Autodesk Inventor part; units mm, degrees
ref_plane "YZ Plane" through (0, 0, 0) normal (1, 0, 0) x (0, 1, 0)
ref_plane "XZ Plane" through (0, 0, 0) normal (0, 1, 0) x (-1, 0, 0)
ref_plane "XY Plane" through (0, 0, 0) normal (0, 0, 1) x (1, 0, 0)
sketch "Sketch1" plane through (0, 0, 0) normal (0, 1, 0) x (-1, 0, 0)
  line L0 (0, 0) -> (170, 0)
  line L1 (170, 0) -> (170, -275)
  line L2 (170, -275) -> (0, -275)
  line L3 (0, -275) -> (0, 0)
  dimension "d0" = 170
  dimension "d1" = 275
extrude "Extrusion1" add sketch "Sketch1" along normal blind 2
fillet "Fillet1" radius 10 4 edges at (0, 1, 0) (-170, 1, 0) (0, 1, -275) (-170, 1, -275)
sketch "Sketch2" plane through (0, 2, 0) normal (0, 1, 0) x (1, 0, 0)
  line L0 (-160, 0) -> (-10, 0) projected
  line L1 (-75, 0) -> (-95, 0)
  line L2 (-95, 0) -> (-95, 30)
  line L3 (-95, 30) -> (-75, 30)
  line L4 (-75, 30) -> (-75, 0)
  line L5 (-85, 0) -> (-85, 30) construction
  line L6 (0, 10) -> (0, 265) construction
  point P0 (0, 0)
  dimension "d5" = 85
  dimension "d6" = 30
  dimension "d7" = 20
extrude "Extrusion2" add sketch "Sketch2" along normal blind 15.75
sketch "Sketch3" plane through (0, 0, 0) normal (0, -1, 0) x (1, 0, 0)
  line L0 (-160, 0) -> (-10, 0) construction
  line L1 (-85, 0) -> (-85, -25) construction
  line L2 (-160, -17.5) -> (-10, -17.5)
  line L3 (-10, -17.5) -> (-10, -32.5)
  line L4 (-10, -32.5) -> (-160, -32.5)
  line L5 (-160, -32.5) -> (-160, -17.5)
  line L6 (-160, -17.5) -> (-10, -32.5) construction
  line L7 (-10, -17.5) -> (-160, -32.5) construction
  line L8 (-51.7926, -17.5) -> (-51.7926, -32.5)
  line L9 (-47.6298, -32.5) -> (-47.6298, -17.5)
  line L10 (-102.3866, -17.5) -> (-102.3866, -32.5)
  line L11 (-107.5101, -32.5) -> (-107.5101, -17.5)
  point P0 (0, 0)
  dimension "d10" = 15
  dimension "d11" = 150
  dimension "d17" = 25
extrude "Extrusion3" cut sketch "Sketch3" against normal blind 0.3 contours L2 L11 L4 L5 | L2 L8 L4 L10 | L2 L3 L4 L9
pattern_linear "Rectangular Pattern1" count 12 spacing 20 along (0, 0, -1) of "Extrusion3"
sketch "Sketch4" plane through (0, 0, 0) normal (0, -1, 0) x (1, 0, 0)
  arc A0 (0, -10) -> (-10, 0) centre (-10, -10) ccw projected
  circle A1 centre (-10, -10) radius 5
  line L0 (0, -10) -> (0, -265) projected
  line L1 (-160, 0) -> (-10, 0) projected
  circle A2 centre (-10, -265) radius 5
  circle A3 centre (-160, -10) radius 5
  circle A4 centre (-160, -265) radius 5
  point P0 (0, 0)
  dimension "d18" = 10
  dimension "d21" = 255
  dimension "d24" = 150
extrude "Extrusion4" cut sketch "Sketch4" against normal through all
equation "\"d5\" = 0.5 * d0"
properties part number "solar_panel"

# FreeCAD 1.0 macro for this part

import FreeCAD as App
import Part
import Sketcher

V = App.Vector


def edges_at(feature, points):
    """Names of the edges that pass closest to the given points."""
    edges = feature.Shape.Edges
    near = lambda p: min(range(len(edges)), key=lambda i: edges[i].distToShape(Part.Vertex(*p))[0])
    return sorted({f"Edge{near(p) + 1}" for p in points})


def add_polygon(sketch, points):
    """Adds a closed chain of lines whose ends are joined by coincident constraints."""
    first, n = sketch.GeometryCount, len(points)
    for a, b in zip(points, points[1:] + points[:1]):
        sketch.addGeometry(Part.LineSegment(App.Vector(*a, 0), App.Vector(*b, 0)), False)
    for i in range(n):
        sketch.addConstraint(Sketcher.Constraint("Coincident", first + i, 2, first + (i + 1) % n, 1))

doc = App.newDocument("Part")
params = doc.addObject("Spreadsheet::Sheet", "Params")
for row, (alias, value) in enumerate([
    ("sketch1_width", "170 mm"),
    ("sketch1_height", "275 mm"),
    ("pad1_length", "2 mm"),
    ("fillet_radius", "10 mm"),
    ("sketch2_width", "20 mm"),
    ("sketch2_height", "30 mm"),
    ("pad2_length", "15.75 mm"),
    ("sketch3_height", "15 mm"),
    ("sketch3_width", "52.49 mm"),
    ("pocket1_length", "0.3 mm"),
    ("linearpattern_pitch", "20 mm"),
    ("sketch4_diameter", "10 mm"),
], start=1):
    params.set(f"A{row}", alias)
    params.set(f"B{row}", "=" + value)
    params.setAlias(f"B{row}", alias)

body = doc.addObject("PartDesign::Body", "Body")

# Sketch on XZ plane
sketch1 = body.newObject("Sketcher::SketchObject", "Sketch")
sketch1.AttachmentSupport = (doc.getObject("XZ_Plane"), [""])
sketch1.MapMode = "FlatFace"
add_polygon(sketch1, [(-170, 0), (0, 0), (0, -275), (-170, -275)])  # lines 0-3
sketch1.addConstraint([
    Sketcher.Constraint("Horizontal", 0),
    Sketcher.Constraint("Vertical", 1),
    Sketcher.Constraint("Horizontal", 2),
    Sketcher.Constraint("Vertical", 3),
    Sketcher.Constraint("Coincident", 0, 2, -1, 1),
    Sketcher.Constraint("DistanceX", 0, 1, 0, 2, 170.0),
    Sketcher.Constraint("DistanceY", 1, 2, 1, 1, 275.0),
])
sketch1.setExpression("Constraints[9]", "Params.sketch1_width")
sketch1.setExpression("Constraints[10]", "Params.sketch1_height")
pad1 = body.newObject("PartDesign::Pad", "Pad")
pad1.Profile = sketch1
pad1.setExpression("Length", "Params.pad1_length")
pad1.Reversed = True
doc.recompute()

fillet = body.newObject("PartDesign::Fillet", "Fillet")
fillet.Base = (pad1, edges_at(pad1, [
    (0, 1, 0),
    (-170, 1, 0),
    (0, 1, -275),
    (-170, 1, -275),
]))
fillet.setExpression("Radius", "Params.fillet_radius")

# Sketch on XZ plane
sketch2 = body.newObject("Sketcher::SketchObject", "Sketch001")
sketch2.AttachmentSupport = (doc.getObject("XZ_Plane"), [""])
sketch2.MapMode = "FlatFace"
sketch2.AttachmentOffset = App.Placement(V(0, 0, -2), App.Rotation())
add_polygon(sketch2, [(-95, -30), (-95, 0), (-75, 0), (-75, -30)])  # lines 0-3
sketch2.addConstraint([
    Sketcher.Constraint("Vertical", 0),
    Sketcher.Constraint("Horizontal", 1),
    Sketcher.Constraint("Vertical", 2),
    Sketcher.Constraint("Horizontal", 3),
    Sketcher.Constraint("PointOnObject", 0, 2, -1),
    Sketcher.Constraint("DistanceX", 1, 1, 1, 2, 20.0),
    Sketcher.Constraint("DistanceY", 0, 1, 0, 2, 30.0),
    Sketcher.Constraint("DistanceX", 0, 2, -1, 1, 95.0),
])
sketch2.setExpression("Constraints[9]", "Params.sketch2_width")
sketch2.setExpression("Constraints[10]", "Params.sketch2_height")
pad2 = body.newObject("PartDesign::Pad", "Pad001")
pad2.Profile = sketch2
pad2.setExpression("Length", "Params.pad2_length")
pad2.Reversed = True

# Sketch on XZ plane
sketch3 = body.newObject("Sketcher::SketchObject", "Sketch002")
sketch3.AttachmentSupport = (doc.getObject("XZ_Plane"), [""])
sketch3.MapMode = "FlatFace"
add_polygon(sketch3, [(-108, -18), (-160, -18), (-160, -32), (-108, -32)])  # lines 0-3
add_polygon(sketch3, [(-52, -18), (-102, -18), (-102, -32), (-52, -32)])  # lines 4-7
add_polygon(sketch3, [(-10, -18), (-48, -18), (-48, -32), (-10, -32)])  # lines 8-11
sketch3.addConstraint([
    Sketcher.Constraint("Horizontal", 0),
    Sketcher.Constraint("Vertical", 1),
    Sketcher.Constraint("Horizontal", 2),
    Sketcher.Constraint("Vertical", 3),
    Sketcher.Constraint("Horizontal", 4),
    Sketcher.Constraint("Vertical", 5),
    Sketcher.Constraint("Horizontal", 6),
    Sketcher.Constraint("Vertical", 7),
    Sketcher.Constraint("Horizontal", 8),
    Sketcher.Constraint("Vertical", 9),
    Sketcher.Constraint("Horizontal", 10),
    Sketcher.Constraint("Vertical", 11),
    Sketcher.Constraint("Horizontal", 3, 2, 4, 2),
    Sketcher.Constraint("Horizontal", 2, 2, 5, 2),
    Sketcher.Constraint("Horizontal", 7, 2, 8, 2),
    Sketcher.Constraint("Horizontal", 6, 2, 9, 2),
    Sketcher.Constraint("DistanceY", 1, 2, 1, 1, 15.0),
    Sketcher.Constraint("DistanceX", 0, 2, -1, 1, 160.0),
    Sketcher.Constraint("DistanceX", 10, 2, -1, 1, 10.0),
    Sketcher.Constraint("DistanceX", 0, 2, 0, 1, 52.49),
    Sketcher.Constraint("DistanceY", 0, 2, -1, 1, 17.5),
    Sketcher.Constraint("DistanceX", 4, 2, 4, 1, 50.594),
    Sketcher.Constraint("DistanceX", 8, 2, 8, 1, 37.6298),
    Sketcher.Constraint("DistanceX", 4, 2, -1, 1, 102.3866),
])
sketch3.setExpression("Constraints[28]", "Params.sketch3_height")
sketch3.setExpression("Constraints[31]", "Params.sketch3_width")
pocket1 = body.newObject("PartDesign::Pocket", "Pocket")
pocket1.Profile = sketch3
pocket1.setExpression("Length", "Params.pocket1_length")
doc.recompute()

linearpattern = body.newObject("PartDesign::LinearPattern", "LinearPattern")
linearpattern.Originals = [pocket1]
linearpattern.Direction = (doc.getObject("Z_Axis"), [""])
linearpattern.Mode = "offset"
linearpattern.setExpression("Offset", "Params.linearpattern_pitch")
linearpattern.Occurrences = 12
linearpattern.Reversed = True
body.Tip = linearpattern

# Sketch on XZ plane
sketch4 = body.newObject("Sketcher::SketchObject", "Sketch003")
sketch4.AttachmentSupport = (doc.getObject("XZ_Plane"), [""])
sketch4.MapMode = "FlatFace"
sketch4.addGeometry([
    Part.Circle(V(-10, -10, 0), V(0, 0, 1), 5),
    Part.Circle(V(-10, -265, 0), V(0, 0, 1), 5),
    Part.Circle(V(-160, -10, 0), V(0, 0, 1), 5),
    Part.Circle(V(-160, -265, 0), V(0, 0, 1), 5),
], False)
sketch4.addConstraint([
    Sketcher.Constraint("Equal", 0, 1),
    Sketcher.Constraint("Equal", 1, 2),
    Sketcher.Constraint("Equal", 2, 3),
    Sketcher.Constraint("Horizontal", 0, 3, 2, 3),
    Sketcher.Constraint("Horizontal", 1, 3, 3, 3),
    Sketcher.Constraint("Vertical", 0, 3, 1, 3),
    Sketcher.Constraint("Vertical", 2, 3, 3, 3),
    Sketcher.Constraint("Diameter", 0, 10.0),
    Sketcher.Constraint("DistanceX", 0, 3, -1, 1, 10.0),
    Sketcher.Constraint("DistanceY", 0, 3, -1, 1, 10.0),
    Sketcher.Constraint("DistanceY", 1, 3, 0, 3, 255.0),
    Sketcher.Constraint("DistanceX", 2, 3, 0, 3, 150.0),
])
sketch4.setExpression("Constraints[7]", "Params.sketch4_diameter")
pocket2 = body.newObject("PartDesign::Pocket", "Pocket001")
pocket2.Profile = sketch4
pocket2.Type = "ThroughAll"

doc.recompute()
